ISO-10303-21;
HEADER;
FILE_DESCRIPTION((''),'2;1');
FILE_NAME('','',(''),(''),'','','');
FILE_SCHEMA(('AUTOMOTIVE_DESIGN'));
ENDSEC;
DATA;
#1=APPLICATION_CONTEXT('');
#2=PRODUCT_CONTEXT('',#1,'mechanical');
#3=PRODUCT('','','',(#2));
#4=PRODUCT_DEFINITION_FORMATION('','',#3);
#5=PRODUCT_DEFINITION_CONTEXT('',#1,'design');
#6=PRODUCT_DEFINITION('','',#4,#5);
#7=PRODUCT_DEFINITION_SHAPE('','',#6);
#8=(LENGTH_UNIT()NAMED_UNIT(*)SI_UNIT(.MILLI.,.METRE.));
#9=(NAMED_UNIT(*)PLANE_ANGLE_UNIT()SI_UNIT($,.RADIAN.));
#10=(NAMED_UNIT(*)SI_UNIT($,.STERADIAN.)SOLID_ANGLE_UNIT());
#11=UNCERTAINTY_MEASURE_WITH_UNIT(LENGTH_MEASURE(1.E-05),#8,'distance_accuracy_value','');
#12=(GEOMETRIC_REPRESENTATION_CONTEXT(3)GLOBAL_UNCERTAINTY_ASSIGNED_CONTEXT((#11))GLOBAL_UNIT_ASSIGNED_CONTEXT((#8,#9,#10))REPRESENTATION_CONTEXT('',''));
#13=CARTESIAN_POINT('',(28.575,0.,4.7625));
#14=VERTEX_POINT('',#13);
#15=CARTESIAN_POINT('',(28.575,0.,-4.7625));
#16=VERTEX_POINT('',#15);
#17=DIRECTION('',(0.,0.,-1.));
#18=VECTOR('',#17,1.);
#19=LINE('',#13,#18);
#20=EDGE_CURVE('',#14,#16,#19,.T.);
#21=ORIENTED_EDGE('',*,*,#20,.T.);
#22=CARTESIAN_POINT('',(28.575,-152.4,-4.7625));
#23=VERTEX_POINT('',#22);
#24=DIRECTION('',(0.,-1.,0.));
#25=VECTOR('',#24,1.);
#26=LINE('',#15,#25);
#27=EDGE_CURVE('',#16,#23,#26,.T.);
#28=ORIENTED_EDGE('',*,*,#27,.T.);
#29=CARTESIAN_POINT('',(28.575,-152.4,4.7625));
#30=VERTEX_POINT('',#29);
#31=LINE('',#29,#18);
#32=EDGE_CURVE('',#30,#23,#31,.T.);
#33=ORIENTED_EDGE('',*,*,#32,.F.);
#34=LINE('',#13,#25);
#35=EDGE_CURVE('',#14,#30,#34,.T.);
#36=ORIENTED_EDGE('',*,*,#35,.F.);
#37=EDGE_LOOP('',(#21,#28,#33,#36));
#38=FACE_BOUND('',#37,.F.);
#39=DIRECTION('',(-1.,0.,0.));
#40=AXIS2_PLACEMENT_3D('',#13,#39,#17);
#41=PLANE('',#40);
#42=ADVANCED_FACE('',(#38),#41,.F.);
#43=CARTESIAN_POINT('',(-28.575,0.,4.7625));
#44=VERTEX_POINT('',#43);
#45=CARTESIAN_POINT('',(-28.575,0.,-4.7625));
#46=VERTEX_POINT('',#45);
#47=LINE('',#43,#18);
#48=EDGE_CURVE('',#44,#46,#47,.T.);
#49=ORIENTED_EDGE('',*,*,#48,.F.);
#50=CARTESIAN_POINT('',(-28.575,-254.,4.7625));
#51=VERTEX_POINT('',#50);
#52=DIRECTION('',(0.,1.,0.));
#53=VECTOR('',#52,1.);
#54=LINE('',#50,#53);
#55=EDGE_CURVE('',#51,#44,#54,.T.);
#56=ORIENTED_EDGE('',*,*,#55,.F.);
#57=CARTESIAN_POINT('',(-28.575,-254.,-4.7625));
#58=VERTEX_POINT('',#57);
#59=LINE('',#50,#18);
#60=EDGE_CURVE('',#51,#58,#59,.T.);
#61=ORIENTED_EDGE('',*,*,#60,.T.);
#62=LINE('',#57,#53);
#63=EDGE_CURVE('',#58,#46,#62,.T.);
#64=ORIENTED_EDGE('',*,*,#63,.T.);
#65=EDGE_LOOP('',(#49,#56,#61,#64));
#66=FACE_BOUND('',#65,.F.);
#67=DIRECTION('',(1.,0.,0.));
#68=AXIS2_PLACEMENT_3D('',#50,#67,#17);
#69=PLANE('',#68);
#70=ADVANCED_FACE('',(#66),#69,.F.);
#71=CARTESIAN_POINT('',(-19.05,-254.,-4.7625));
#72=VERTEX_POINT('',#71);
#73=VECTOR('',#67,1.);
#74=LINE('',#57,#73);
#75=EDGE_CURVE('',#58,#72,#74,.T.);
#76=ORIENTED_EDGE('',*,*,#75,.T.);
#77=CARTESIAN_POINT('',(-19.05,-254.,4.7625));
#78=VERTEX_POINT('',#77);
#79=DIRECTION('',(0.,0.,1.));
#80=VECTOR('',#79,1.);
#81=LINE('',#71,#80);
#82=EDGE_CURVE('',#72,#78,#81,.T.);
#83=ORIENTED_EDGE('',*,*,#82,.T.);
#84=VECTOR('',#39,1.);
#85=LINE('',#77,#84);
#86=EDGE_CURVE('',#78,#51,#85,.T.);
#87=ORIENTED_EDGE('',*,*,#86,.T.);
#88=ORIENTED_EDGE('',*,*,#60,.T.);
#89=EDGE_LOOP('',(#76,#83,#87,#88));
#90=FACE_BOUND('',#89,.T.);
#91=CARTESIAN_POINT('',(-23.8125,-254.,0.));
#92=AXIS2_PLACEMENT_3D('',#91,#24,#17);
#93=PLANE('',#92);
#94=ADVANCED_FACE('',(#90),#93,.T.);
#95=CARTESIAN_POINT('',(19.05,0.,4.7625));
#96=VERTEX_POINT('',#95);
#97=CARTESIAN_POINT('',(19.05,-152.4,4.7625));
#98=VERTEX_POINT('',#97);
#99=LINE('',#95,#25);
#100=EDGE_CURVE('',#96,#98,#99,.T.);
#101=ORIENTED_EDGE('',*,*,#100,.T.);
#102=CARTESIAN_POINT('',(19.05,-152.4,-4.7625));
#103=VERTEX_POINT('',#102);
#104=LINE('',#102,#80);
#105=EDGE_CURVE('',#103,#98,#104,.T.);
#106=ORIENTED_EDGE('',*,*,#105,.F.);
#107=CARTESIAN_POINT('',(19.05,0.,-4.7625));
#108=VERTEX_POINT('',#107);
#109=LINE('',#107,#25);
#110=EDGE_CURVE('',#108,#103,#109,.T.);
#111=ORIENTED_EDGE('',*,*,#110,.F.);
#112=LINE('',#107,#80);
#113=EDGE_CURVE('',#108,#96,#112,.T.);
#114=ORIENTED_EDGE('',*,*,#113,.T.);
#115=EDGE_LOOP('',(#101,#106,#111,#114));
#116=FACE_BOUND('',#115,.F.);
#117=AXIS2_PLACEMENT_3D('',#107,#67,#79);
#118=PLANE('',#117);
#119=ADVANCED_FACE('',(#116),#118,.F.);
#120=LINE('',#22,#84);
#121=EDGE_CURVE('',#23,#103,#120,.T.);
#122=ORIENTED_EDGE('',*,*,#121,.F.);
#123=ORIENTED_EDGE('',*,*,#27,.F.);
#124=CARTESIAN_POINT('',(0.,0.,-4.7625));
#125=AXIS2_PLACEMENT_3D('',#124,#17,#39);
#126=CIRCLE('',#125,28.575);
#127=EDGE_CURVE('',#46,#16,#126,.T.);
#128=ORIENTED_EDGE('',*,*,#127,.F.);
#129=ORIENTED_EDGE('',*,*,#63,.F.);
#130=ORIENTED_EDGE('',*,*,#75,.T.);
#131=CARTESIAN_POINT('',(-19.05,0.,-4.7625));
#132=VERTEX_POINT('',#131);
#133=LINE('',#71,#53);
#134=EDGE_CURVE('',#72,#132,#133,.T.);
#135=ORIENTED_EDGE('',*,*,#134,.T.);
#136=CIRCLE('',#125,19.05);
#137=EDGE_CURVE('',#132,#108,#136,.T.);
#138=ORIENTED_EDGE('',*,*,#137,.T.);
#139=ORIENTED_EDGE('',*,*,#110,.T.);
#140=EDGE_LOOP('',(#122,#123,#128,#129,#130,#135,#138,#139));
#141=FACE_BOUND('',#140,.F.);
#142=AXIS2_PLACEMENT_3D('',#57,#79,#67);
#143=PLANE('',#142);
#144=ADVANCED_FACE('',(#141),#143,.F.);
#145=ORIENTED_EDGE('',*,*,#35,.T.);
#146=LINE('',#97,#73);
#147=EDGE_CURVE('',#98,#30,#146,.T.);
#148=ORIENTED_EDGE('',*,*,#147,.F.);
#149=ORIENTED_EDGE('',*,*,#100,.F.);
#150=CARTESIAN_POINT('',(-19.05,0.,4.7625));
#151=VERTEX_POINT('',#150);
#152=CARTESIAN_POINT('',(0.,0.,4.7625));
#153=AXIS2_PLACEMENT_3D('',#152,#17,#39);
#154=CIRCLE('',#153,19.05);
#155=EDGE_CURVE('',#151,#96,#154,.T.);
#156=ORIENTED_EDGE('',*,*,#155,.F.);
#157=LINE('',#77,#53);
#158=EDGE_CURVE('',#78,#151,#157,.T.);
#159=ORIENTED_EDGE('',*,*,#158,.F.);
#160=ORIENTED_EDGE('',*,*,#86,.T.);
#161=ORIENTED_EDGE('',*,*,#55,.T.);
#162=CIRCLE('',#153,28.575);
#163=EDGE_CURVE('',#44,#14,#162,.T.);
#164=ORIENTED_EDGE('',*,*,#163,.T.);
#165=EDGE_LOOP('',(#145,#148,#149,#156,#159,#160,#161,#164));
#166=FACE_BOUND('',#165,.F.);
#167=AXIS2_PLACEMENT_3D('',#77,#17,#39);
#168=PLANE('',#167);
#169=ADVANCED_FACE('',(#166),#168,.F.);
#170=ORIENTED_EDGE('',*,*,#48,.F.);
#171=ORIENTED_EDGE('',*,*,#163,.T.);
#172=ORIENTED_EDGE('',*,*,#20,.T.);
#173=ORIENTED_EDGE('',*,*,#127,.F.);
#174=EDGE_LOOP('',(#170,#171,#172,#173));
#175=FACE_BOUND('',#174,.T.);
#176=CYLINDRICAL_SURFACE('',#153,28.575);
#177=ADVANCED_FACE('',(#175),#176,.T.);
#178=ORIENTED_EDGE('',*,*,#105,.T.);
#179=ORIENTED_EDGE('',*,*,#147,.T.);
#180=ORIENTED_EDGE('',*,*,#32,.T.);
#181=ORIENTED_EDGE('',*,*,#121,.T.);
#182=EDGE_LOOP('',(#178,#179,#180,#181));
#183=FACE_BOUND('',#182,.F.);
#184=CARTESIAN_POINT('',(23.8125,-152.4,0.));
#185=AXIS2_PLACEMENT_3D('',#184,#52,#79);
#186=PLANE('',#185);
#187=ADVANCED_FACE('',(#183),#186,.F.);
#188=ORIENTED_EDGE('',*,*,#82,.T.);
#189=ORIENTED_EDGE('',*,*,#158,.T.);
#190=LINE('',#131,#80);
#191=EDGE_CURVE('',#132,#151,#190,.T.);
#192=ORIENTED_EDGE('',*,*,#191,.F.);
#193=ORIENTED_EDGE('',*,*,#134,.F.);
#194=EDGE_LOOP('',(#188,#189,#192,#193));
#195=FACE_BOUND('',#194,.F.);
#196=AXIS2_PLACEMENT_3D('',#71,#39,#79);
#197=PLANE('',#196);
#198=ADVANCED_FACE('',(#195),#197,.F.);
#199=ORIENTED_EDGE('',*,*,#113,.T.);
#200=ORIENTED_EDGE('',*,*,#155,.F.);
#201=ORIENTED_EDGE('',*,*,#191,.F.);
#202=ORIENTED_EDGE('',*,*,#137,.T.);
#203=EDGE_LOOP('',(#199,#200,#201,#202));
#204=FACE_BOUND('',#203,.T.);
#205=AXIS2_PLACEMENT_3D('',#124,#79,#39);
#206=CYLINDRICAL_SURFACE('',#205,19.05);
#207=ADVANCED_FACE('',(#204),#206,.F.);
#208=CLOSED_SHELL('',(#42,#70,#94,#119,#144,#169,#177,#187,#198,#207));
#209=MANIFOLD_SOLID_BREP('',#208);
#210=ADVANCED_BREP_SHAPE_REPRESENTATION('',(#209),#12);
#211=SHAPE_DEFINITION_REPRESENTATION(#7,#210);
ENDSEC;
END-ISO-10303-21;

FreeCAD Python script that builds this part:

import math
import FreeCAD as App
import Part
import Sketcher

V = App.Vector
Q = App.Units.Quantity

doc = App.newDocument("Part")
body = doc.addObject("PartDesign::Body", "Body")

sketch1 = doc.addObject("Sketcher::SketchObject", "Sketch")
body.addObject(sketch1)
sketch1.AttachmentSupport = (doc.XZ_Plane, [""])
sketch1.MapMode = "FlatFace"
sketch1.AttachmentOffset = App.Placement(V(0, 0, 10 * 25.4), App.Rotation())
sketch1.addGeometry([
    Part.LineSegment(V(-19, 5, 0), V(-29, 5, 0)),
    Part.LineSegment(V(-29, 5, 0), V(-29, -5, 0)),
    Part.LineSegment(V(-29, -5, 0), V(-19, -5, 0)),
    Part.LineSegment(V(-19, -5, 0), V(-19, 5, 0)),
], False)
sketch1.addConstraint([
    Sketcher.Constraint("Coincident", 0, 2, 1, 1),
    Sketcher.Constraint("Coincident", 1, 2, 2, 1),
    Sketcher.Constraint("Coincident", 2, 2, 3, 1),
    Sketcher.Constraint("Coincident", 3, 2, 0, 1),
    Sketcher.Constraint("Horizontal", 0),
    Sketcher.Constraint("Vertical", 1),
    Sketcher.Constraint("Horizontal", 2),
    Sketcher.Constraint("Vertical", 3),
    Sketcher.Constraint("Equal", 2, 1),
    Sketcher.Constraint("DistanceX", 0, 2, 0, 1, Q("0.375 in")),
    Sketcher.Constraint("DistanceX", 2, 2, -1, 1, Q("0.75 in")),
    Sketcher.Constraint("DistanceY", -1, 1, 0, 2, Q("0.1875 in")),
])

sketch2 = doc.addObject("Sketcher::SketchObject", "Sketch001")
body.addObject(sketch2)
sketch2.AttachmentSupport = (doc.XY_Plane, [""])
sketch2.MapMode = "FlatFace"
sketch2.addGeometry([
    Part.LineSegment(V(-24, -254, 0), V(-24, 0, 0)),
    Part.ArcOfCircle(Part.Circle(V(0, 0, 0), V(0, 0, 1), 24), math.radians(0), math.radians(180)),
    Part.LineSegment(V(24, 0, 0), V(24, -152, 0)),
], False)
sketch2.addConstraint([
    Sketcher.Constraint("Tangent", 0, 2, 1, 2),
    Sketcher.Constraint("Tangent", 1, 1, 2, 1),
    Sketcher.Constraint("Vertical", 0),
    Sketcher.Constraint("Vertical", 2),
    Sketcher.Constraint("Coincident", 1, 3, -1, 1),
    Sketcher.Constraint("DistanceY", 0, 1, 0, 2, Q("10 in")),
    Sketcher.Constraint("DistanceY", 2, 2, 2, 1, Q("6 in")),
    Sketcher.Constraint("Radius", 1, Q("0.9375 in")),
])
doc.recompute()

additivepipe = doc.addObject("PartDesign::AdditivePipe", "AdditivePipe")
body.addObject(additivepipe)
additivepipe.Profile = sketch1
additivepipe.Spine = (sketch2, ["Edge1", "Edge2", "Edge3"])

doc.recompute()
